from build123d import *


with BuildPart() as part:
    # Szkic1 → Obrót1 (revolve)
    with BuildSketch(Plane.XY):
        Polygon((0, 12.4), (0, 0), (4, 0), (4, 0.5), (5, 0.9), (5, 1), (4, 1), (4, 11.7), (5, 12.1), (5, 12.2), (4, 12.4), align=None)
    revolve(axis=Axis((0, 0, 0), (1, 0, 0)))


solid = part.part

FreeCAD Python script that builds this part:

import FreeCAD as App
import Part
import Sketcher


def add_polygon(sketch, points):
    """Adds a closed chain of lines whose ends are joined by coincident constraints."""
    first, n = sketch.GeometryCount, len(points)
    for a, b in zip(points, points[1:] + points[:1]):
        sketch.addGeometry(Part.LineSegment(App.Vector(*a, 0), App.Vector(*b, 0)), False)
    for i in range(n):
        sketch.addConstraint(Sketcher.Constraint("Coincident", first + i, 2, first + (i + 1) % n, 1))

doc = App.newDocument("Part")
body = doc.addObject("PartDesign::Body", "Body")

# Sketch on XY plane
sketch1 = body.newObject("Sketcher::SketchObject", "Sketch")
sketch1.AttachmentSupport = (doc.getObject("XY_Plane"), [""])
sketch1.MapMode = "FlatFace"
add_polygon(sketch1, [(0, 12.4), (0, 0), (4, 0), (4, 0.5), (5, 0.9), (5, 1), (4, 1), (4, 11.7), (5, 12.1), (5, 12.2), (4, 12.4)])  # lines 0-10
sketch1.addConstraint([
    Sketcher.Constraint("Vertical", 0),
    Sketcher.Constraint("Horizontal", 1),
    Sketcher.Constraint("Vertical", 2),
    Sketcher.Constraint("Vertical", 4),
    Sketcher.Constraint("Horizontal", 5),
    Sketcher.Constraint("Vertical", 6),
    Sketcher.Constraint("Vertical", 8),
    Sketcher.Constraint("Horizontal", 10),
    Sketcher.Constraint("Coincident", 0, 2, -1, 1),
    Sketcher.Constraint("Parallel", 3, 7),
    Sketcher.Constraint("Vertical", 2, 2, 5, 2),
    Sketcher.Constraint("Vertical", 4, 2, 7, 2),
    Sketcher.Constraint("Vertical", 6, 2, 9, 2),
    Sketcher.Constraint("Equal", 4, 8),
    Sketcher.Constraint("DistanceX", 1, 1, 1, 2, 4.0),
    Sketcher.Constraint("DistanceX", 5, 2, 5, 1, 1.0),
    Sketcher.Constraint("DistanceY", 0, 2, 0, 1, 12.4),
    Sketcher.Constraint("DistanceY", 2, 1, 2, 2, 0.5),
    Sketcher.Constraint("DistanceY", 4, 1, 4, 2, 0.1),
    Sketcher.Constraint("DistanceY", 6, 1, 6, 2, 10.7),
    Sketcher.Constraint("DistanceY", -1, 1, 4, 2, 1.0),
])
revolution = body.newObject("PartDesign::Revolution", "Revolution")
revolution.Profile = sketch1
revolution.ReferenceAxis = (sketch1, ["H_Axis"])
revolution.Angle = 360

doc.recompute()
